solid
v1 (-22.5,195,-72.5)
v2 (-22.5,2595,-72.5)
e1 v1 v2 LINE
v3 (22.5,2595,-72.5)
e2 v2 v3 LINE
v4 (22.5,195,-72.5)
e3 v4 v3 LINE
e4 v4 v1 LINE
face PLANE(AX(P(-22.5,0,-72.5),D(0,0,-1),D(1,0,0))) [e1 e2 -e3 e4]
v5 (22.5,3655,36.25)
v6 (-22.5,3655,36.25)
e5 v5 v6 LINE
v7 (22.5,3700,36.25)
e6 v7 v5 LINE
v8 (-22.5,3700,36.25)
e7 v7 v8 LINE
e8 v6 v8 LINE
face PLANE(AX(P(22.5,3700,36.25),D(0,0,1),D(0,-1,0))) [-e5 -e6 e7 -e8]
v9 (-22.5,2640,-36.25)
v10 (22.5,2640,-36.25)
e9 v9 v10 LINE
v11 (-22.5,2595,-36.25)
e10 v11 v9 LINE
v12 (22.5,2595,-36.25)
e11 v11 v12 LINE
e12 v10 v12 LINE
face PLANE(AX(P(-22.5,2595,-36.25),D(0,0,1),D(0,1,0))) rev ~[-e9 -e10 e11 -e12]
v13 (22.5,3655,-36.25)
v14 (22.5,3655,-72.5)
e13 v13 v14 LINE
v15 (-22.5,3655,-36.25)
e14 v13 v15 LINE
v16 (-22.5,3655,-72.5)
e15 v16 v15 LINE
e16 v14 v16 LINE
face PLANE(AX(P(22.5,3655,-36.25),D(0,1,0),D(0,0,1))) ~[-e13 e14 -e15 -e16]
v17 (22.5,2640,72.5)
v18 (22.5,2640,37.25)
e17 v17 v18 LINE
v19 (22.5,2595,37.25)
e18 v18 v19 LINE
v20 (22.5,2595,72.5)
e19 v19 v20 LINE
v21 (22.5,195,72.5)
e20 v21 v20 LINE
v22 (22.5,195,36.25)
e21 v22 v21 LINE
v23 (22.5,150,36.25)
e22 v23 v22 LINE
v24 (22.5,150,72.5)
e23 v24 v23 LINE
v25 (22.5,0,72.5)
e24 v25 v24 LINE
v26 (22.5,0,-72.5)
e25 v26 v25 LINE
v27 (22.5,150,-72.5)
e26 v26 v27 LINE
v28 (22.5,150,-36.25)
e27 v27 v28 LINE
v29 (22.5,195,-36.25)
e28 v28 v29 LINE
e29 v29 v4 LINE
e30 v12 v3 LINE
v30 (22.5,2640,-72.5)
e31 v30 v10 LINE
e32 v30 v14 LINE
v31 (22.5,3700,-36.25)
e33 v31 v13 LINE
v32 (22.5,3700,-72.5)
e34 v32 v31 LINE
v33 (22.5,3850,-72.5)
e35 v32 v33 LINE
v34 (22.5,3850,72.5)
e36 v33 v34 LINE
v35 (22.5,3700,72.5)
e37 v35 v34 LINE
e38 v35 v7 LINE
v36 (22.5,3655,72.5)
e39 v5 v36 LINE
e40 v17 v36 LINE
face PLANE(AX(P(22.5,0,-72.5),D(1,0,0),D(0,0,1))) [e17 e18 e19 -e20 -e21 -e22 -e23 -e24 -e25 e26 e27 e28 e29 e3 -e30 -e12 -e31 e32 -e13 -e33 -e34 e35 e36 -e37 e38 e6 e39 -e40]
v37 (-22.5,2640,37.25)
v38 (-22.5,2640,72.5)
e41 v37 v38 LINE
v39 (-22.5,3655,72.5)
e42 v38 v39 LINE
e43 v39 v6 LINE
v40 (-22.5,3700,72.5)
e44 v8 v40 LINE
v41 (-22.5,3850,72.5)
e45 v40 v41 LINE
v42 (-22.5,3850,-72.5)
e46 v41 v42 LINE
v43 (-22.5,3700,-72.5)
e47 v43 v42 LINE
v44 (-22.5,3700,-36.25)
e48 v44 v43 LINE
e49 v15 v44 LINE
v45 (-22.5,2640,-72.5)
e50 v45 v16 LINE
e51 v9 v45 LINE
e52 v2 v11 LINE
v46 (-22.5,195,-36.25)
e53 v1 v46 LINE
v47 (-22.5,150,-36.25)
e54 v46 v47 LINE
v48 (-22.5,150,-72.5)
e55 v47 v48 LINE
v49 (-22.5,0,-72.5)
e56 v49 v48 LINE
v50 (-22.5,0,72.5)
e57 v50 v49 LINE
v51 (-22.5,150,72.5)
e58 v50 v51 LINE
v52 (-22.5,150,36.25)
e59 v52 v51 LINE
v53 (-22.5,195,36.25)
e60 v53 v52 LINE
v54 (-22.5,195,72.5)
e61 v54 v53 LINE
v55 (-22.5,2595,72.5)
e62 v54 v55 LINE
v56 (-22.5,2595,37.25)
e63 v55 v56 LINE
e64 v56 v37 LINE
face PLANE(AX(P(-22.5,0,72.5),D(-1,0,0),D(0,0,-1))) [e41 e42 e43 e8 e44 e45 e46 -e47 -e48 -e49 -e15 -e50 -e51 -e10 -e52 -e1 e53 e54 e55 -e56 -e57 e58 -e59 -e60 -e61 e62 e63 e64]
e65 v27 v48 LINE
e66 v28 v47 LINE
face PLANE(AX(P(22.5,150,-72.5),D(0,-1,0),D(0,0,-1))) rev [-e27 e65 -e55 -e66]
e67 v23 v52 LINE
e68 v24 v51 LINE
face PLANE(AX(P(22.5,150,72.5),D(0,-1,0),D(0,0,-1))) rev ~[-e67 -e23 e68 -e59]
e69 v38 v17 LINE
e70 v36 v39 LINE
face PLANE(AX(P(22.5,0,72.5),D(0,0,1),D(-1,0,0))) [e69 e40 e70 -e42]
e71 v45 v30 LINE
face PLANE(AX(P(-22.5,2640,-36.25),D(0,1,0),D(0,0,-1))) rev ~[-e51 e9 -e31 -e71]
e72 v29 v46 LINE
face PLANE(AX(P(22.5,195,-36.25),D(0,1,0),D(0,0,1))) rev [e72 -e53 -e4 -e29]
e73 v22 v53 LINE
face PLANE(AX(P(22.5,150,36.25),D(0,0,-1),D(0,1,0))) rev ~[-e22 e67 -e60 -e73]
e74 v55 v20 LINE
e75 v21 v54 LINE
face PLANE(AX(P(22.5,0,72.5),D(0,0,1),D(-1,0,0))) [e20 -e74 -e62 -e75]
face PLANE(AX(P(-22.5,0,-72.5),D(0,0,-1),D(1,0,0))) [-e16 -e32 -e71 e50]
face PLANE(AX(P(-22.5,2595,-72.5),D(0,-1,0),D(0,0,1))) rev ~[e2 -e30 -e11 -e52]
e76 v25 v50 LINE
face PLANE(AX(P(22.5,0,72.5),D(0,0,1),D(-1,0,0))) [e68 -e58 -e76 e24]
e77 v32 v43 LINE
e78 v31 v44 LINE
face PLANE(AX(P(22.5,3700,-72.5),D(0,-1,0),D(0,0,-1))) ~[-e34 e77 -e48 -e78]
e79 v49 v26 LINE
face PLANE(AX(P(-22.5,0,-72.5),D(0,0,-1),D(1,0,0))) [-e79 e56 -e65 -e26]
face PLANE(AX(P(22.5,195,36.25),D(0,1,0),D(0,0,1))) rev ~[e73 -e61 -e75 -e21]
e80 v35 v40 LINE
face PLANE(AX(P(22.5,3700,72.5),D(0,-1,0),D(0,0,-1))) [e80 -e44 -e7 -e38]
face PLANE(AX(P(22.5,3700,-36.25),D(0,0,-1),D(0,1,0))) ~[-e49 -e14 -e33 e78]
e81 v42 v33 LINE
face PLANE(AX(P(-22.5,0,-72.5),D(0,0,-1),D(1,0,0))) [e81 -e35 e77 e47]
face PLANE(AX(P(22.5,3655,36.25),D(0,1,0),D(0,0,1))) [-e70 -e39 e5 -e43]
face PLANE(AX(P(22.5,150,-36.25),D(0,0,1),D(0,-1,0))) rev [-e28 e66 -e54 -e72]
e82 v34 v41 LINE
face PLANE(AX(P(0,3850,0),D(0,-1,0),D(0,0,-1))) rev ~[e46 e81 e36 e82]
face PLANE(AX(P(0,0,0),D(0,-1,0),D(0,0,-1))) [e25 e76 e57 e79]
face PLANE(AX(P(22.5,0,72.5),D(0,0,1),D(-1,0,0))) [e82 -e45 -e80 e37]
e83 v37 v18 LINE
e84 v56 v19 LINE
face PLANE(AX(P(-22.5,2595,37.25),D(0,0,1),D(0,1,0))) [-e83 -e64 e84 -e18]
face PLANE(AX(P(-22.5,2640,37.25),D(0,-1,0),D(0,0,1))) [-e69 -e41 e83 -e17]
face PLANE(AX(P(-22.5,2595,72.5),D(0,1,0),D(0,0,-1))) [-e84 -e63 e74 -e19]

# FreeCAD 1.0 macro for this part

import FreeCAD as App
import Part
import Sketcher

V = App.Vector

doc = App.newDocument("Part")
params = doc.addObject("Spreadsheet::Sheet", "Params")
for row, (alias, value) in enumerate([
    ("sketch1_width", "45 mm"),
    ("sketch1_height", "145 mm"),
    ("pad1_length", "3850 mm"),
    ("sketch2_width", "45 mm"),
    ("sketch2_height", "36.25 mm"),
    ("pocket1_length", "86.6929 mm"),
    ("sketch3_width", "45 mm"),
    ("sketch3_height", "35.25 mm"),
    ("sketch3_height2", "36.25 mm"),
    ("pocket2_length", "78.7482 mm"),
], start=1):
    params.set(f"A{row}", alias)
    params.set(f"B{row}", "=" + value)
    params.setAlias(f"B{row}", alias)

body = doc.addObject("PartDesign::Body", "Body")

# Sketch on XZ plane
sketch1 = body.newObject("Sketcher::SketchObject", "Sketch")
sketch1.AttachmentSupport = (doc.getObject("XZ_Plane"), [""])
sketch1.MapMode = "FlatFace"
sketch1.addGeometry([
    Part.LineSegment(V(-22, 72, 0), V(-22, -72, 0)),
    Part.LineSegment(V(-22, -72, 0), V(22, -72, 0)),
    Part.LineSegment(V(22, -72, 0), V(22, 72, 0)),
    Part.LineSegment(V(22, 72, 0), V(-22, 72, 0)),
], False)
sketch1.addConstraint([
    Sketcher.Constraint("Coincident", 0, 2, 1, 1),
    Sketcher.Constraint("Coincident", 1, 2, 2, 1),
    Sketcher.Constraint("Coincident", 2, 2, 3, 1),
    Sketcher.Constraint("Coincident", 3, 2, 0, 1),
    Sketcher.Constraint("Vertical", 0),
    Sketcher.Constraint("Horizontal", 1),
    Sketcher.Constraint("Vertical", 2),
    Sketcher.Constraint("Horizontal", 3),
    Sketcher.Constraint("Symmetric", 0, 2, 2, 2, -1, 1),
    Sketcher.Constraint("DistanceX", 1, 1, 1, 2, 45.0),
    Sketcher.Constraint("DistanceY", 0, 2, 0, 1, 145.0),
])
sketch1.setExpression("Constraints[9]", "Params.sketch1_width")
sketch1.setExpression("Constraints[10]", "Params.sketch1_height")
pad1 = body.newObject("PartDesign::Pad", "Pad")
pad1.Profile = sketch1
pad1.setExpression("Length", "Params.pad1_length")
pad1.Reversed = True

# Sketch on YZ plane
sketch2 = body.newObject("Sketcher::SketchObject", "Sketch001")
sketch2.AttachmentSupport = (doc.getObject("YZ_Plane"), [""])
sketch2.MapMode = "FlatFace"
sketch2.AttachmentOffset = App.Placement(V(0, 0, 22.5), App.Rotation())
sketch2.addGeometry([
    Part.LineSegment(V(3700, 36, 0), V(3700, 72, 0)),  # 0
    Part.LineSegment(V(3700, 72, 0), V(3655, 72, 0)),  # 1
    Part.LineSegment(V(3655, 72, 0), V(3655, 36, 0)),  # 2
    Part.LineSegment(V(3655, 36, 0), V(3700, 36, 0)),  # 3
    Part.LineSegment(V(195, 72, 0), V(150, 72, 0)),  # 4
    Part.LineSegment(V(150, 72, 0), V(150, 36, 0)),  # 5
    Part.LineSegment(V(150, 36, 0), V(195, 36, 0)),  # 6
    Part.LineSegment(V(195, 36, 0), V(195, 72, 0)),  # 7
], False)
sketch2.addConstraint([
    Sketcher.Constraint("Coincident", 0, 2, 1, 1),
    Sketcher.Constraint("Coincident", 1, 2, 2, 1),
    Sketcher.Constraint("Coincident", 2, 2, 3, 1),
    Sketcher.Constraint("Coincident", 3, 2, 0, 1),
    Sketcher.Constraint("Coincident", 4, 2, 5, 1),
    Sketcher.Constraint("Coincident", 5, 2, 6, 1),
    Sketcher.Constraint("Coincident", 6, 2, 7, 1),
    Sketcher.Constraint("Coincident", 7, 2, 4, 1),
    Sketcher.Constraint("Vertical", 0),
    Sketcher.Constraint("Horizontal", 1),
    Sketcher.Constraint("Vertical", 2),
    Sketcher.Constraint("Horizontal", 3),
    Sketcher.Constraint("Horizontal", 4),
    Sketcher.Constraint("Vertical", 5),
    Sketcher.Constraint("Horizontal", 6),
    Sketcher.Constraint("Vertical", 7),
    Sketcher.Constraint("Horizontal", 1, 2, 4, 2),
    Sketcher.Constraint("Horizontal", 3, 2, 5, 2),
    Sketcher.Constraint("Equal", 3, 4),
    Sketcher.Constraint("DistanceX", 1, 2, 1, 1, 45.0),
    Sketcher.Constraint("DistanceX", -1, 1, 0, 2, 3700.0),
    Sketcher.Constraint("DistanceX", -1, 1, 4, 2, 150.0),
    Sketcher.Constraint("DistanceY", 0, 1, 0, 2, 36.25),
    Sketcher.Constraint("DistanceY", -1, 1, 0, 2, 72.5),
])
sketch2.setExpression("Constraints[19]", "Params.sketch2_width")
sketch2.setExpression("Constraints[22]", "Params.sketch2_height")
pocket1 = body.newObject("PartDesign::Pocket", "Pocket")
pocket1.Profile = sketch2
pocket1.setExpression("Length", "Params.pocket1_length")
doc.recompute()

mirrored = body.newObject("PartDesign::Mirrored", "Mirrored")
mirrored.Originals = [pocket1]
mirrored.MirrorPlane = (doc.getObject("XY_Plane"), [""])
body.Tip = mirrored

# Sketch on YZ plane
sketch3 = body.newObject("Sketcher::SketchObject", "Sketch002")
sketch3.AttachmentSupport = (doc.getObject("YZ_Plane"), [""])
sketch3.MapMode = "FlatFace"
sketch3.AttachmentOffset = App.Placement(V(0, 0, -22.5), App.Rotation())
sketch3.addGeometry([
    Part.LineSegment(V(2595, 37, 0), V(2595, 72, 0)),  # 0
    Part.LineSegment(V(2595, 72, 0), V(2640, 72, 0)),  # 1
    Part.LineSegment(V(2640, 72, 0), V(2640, 37, 0)),  # 2
    Part.LineSegment(V(2640, 37, 0), V(2595, 37, 0)),  # 3
    Part.LineSegment(V(2640, -36, 0), V(2640, -72, 0)),  # 4
    Part.LineSegment(V(2640, -72, 0), V(2595, -72, 0)),  # 5
    Part.LineSegment(V(2595, -72, 0), V(2595, -36, 0)),  # 6
    Part.LineSegment(V(2595, -36, 0), V(2640, -36, 0)),  # 7
], False)
sketch3.addConstraint([
    Sketcher.Constraint("Coincident", 0, 2, 1, 1),
    Sketcher.Constraint("Coincident", 1, 2, 2, 1),
    Sketcher.Constraint("Coincident", 2, 2, 3, 1),
    Sketcher.Constraint("Coincident", 3, 2, 0, 1),
    Sketcher.Constraint("Coincident", 4, 2, 5, 1),
    Sketcher.Constraint("Coincident", 5, 2, 6, 1),
    Sketcher.Constraint("Coincident", 6, 2, 7, 1),
    Sketcher.Constraint("Coincident", 7, 2, 4, 1),
    Sketcher.Constraint("Vertical", 0),
    Sketcher.Constraint("Horizontal", 1),
    Sketcher.Constraint("Vertical", 2),
    Sketcher.Constraint("Horizontal", 3),
    Sketcher.Constraint("Vertical", 4),
    Sketcher.Constraint("Horizontal", 5),
    Sketcher.Constraint("Vertical", 6),
    Sketcher.Constraint("Horizontal", 7),
    Sketcher.Constraint("Symmetric", 1, 2, 4, 2, -1),
    Sketcher.Constraint("Vertical", 3, 2, 5, 2),
    Sketcher.Constraint("DistanceX", 1, 1, 1, 2, 45.0),
    Sketcher.Constraint("DistanceX", -1, 1, 0, 2, 2595.0),
    Sketcher.Constraint("DistanceY", 4, 2, 1, 2, 145.0),
    Sketcher.Constraint("DistanceY", 0, 1, 0, 2, 35.25),
    Sketcher.Constraint("DistanceY", 4, 2, 4, 1, 36.25),
])
sketch3.setExpression("Constraints[18]", "Params.sketch3_width")
sketch3.setExpression("Constraints[21]", "Params.sketch3_height")
sketch3.setExpression("Constraints[22]", "Params.sketch3_height2")
pocket2 = body.newObject("PartDesign::Pocket", "Pocket001")
pocket2.Profile = sketch3
pocket2.setExpression("Length", "Params.pocket2_length")
pocket2.Reversed = True

doc.recompute()
